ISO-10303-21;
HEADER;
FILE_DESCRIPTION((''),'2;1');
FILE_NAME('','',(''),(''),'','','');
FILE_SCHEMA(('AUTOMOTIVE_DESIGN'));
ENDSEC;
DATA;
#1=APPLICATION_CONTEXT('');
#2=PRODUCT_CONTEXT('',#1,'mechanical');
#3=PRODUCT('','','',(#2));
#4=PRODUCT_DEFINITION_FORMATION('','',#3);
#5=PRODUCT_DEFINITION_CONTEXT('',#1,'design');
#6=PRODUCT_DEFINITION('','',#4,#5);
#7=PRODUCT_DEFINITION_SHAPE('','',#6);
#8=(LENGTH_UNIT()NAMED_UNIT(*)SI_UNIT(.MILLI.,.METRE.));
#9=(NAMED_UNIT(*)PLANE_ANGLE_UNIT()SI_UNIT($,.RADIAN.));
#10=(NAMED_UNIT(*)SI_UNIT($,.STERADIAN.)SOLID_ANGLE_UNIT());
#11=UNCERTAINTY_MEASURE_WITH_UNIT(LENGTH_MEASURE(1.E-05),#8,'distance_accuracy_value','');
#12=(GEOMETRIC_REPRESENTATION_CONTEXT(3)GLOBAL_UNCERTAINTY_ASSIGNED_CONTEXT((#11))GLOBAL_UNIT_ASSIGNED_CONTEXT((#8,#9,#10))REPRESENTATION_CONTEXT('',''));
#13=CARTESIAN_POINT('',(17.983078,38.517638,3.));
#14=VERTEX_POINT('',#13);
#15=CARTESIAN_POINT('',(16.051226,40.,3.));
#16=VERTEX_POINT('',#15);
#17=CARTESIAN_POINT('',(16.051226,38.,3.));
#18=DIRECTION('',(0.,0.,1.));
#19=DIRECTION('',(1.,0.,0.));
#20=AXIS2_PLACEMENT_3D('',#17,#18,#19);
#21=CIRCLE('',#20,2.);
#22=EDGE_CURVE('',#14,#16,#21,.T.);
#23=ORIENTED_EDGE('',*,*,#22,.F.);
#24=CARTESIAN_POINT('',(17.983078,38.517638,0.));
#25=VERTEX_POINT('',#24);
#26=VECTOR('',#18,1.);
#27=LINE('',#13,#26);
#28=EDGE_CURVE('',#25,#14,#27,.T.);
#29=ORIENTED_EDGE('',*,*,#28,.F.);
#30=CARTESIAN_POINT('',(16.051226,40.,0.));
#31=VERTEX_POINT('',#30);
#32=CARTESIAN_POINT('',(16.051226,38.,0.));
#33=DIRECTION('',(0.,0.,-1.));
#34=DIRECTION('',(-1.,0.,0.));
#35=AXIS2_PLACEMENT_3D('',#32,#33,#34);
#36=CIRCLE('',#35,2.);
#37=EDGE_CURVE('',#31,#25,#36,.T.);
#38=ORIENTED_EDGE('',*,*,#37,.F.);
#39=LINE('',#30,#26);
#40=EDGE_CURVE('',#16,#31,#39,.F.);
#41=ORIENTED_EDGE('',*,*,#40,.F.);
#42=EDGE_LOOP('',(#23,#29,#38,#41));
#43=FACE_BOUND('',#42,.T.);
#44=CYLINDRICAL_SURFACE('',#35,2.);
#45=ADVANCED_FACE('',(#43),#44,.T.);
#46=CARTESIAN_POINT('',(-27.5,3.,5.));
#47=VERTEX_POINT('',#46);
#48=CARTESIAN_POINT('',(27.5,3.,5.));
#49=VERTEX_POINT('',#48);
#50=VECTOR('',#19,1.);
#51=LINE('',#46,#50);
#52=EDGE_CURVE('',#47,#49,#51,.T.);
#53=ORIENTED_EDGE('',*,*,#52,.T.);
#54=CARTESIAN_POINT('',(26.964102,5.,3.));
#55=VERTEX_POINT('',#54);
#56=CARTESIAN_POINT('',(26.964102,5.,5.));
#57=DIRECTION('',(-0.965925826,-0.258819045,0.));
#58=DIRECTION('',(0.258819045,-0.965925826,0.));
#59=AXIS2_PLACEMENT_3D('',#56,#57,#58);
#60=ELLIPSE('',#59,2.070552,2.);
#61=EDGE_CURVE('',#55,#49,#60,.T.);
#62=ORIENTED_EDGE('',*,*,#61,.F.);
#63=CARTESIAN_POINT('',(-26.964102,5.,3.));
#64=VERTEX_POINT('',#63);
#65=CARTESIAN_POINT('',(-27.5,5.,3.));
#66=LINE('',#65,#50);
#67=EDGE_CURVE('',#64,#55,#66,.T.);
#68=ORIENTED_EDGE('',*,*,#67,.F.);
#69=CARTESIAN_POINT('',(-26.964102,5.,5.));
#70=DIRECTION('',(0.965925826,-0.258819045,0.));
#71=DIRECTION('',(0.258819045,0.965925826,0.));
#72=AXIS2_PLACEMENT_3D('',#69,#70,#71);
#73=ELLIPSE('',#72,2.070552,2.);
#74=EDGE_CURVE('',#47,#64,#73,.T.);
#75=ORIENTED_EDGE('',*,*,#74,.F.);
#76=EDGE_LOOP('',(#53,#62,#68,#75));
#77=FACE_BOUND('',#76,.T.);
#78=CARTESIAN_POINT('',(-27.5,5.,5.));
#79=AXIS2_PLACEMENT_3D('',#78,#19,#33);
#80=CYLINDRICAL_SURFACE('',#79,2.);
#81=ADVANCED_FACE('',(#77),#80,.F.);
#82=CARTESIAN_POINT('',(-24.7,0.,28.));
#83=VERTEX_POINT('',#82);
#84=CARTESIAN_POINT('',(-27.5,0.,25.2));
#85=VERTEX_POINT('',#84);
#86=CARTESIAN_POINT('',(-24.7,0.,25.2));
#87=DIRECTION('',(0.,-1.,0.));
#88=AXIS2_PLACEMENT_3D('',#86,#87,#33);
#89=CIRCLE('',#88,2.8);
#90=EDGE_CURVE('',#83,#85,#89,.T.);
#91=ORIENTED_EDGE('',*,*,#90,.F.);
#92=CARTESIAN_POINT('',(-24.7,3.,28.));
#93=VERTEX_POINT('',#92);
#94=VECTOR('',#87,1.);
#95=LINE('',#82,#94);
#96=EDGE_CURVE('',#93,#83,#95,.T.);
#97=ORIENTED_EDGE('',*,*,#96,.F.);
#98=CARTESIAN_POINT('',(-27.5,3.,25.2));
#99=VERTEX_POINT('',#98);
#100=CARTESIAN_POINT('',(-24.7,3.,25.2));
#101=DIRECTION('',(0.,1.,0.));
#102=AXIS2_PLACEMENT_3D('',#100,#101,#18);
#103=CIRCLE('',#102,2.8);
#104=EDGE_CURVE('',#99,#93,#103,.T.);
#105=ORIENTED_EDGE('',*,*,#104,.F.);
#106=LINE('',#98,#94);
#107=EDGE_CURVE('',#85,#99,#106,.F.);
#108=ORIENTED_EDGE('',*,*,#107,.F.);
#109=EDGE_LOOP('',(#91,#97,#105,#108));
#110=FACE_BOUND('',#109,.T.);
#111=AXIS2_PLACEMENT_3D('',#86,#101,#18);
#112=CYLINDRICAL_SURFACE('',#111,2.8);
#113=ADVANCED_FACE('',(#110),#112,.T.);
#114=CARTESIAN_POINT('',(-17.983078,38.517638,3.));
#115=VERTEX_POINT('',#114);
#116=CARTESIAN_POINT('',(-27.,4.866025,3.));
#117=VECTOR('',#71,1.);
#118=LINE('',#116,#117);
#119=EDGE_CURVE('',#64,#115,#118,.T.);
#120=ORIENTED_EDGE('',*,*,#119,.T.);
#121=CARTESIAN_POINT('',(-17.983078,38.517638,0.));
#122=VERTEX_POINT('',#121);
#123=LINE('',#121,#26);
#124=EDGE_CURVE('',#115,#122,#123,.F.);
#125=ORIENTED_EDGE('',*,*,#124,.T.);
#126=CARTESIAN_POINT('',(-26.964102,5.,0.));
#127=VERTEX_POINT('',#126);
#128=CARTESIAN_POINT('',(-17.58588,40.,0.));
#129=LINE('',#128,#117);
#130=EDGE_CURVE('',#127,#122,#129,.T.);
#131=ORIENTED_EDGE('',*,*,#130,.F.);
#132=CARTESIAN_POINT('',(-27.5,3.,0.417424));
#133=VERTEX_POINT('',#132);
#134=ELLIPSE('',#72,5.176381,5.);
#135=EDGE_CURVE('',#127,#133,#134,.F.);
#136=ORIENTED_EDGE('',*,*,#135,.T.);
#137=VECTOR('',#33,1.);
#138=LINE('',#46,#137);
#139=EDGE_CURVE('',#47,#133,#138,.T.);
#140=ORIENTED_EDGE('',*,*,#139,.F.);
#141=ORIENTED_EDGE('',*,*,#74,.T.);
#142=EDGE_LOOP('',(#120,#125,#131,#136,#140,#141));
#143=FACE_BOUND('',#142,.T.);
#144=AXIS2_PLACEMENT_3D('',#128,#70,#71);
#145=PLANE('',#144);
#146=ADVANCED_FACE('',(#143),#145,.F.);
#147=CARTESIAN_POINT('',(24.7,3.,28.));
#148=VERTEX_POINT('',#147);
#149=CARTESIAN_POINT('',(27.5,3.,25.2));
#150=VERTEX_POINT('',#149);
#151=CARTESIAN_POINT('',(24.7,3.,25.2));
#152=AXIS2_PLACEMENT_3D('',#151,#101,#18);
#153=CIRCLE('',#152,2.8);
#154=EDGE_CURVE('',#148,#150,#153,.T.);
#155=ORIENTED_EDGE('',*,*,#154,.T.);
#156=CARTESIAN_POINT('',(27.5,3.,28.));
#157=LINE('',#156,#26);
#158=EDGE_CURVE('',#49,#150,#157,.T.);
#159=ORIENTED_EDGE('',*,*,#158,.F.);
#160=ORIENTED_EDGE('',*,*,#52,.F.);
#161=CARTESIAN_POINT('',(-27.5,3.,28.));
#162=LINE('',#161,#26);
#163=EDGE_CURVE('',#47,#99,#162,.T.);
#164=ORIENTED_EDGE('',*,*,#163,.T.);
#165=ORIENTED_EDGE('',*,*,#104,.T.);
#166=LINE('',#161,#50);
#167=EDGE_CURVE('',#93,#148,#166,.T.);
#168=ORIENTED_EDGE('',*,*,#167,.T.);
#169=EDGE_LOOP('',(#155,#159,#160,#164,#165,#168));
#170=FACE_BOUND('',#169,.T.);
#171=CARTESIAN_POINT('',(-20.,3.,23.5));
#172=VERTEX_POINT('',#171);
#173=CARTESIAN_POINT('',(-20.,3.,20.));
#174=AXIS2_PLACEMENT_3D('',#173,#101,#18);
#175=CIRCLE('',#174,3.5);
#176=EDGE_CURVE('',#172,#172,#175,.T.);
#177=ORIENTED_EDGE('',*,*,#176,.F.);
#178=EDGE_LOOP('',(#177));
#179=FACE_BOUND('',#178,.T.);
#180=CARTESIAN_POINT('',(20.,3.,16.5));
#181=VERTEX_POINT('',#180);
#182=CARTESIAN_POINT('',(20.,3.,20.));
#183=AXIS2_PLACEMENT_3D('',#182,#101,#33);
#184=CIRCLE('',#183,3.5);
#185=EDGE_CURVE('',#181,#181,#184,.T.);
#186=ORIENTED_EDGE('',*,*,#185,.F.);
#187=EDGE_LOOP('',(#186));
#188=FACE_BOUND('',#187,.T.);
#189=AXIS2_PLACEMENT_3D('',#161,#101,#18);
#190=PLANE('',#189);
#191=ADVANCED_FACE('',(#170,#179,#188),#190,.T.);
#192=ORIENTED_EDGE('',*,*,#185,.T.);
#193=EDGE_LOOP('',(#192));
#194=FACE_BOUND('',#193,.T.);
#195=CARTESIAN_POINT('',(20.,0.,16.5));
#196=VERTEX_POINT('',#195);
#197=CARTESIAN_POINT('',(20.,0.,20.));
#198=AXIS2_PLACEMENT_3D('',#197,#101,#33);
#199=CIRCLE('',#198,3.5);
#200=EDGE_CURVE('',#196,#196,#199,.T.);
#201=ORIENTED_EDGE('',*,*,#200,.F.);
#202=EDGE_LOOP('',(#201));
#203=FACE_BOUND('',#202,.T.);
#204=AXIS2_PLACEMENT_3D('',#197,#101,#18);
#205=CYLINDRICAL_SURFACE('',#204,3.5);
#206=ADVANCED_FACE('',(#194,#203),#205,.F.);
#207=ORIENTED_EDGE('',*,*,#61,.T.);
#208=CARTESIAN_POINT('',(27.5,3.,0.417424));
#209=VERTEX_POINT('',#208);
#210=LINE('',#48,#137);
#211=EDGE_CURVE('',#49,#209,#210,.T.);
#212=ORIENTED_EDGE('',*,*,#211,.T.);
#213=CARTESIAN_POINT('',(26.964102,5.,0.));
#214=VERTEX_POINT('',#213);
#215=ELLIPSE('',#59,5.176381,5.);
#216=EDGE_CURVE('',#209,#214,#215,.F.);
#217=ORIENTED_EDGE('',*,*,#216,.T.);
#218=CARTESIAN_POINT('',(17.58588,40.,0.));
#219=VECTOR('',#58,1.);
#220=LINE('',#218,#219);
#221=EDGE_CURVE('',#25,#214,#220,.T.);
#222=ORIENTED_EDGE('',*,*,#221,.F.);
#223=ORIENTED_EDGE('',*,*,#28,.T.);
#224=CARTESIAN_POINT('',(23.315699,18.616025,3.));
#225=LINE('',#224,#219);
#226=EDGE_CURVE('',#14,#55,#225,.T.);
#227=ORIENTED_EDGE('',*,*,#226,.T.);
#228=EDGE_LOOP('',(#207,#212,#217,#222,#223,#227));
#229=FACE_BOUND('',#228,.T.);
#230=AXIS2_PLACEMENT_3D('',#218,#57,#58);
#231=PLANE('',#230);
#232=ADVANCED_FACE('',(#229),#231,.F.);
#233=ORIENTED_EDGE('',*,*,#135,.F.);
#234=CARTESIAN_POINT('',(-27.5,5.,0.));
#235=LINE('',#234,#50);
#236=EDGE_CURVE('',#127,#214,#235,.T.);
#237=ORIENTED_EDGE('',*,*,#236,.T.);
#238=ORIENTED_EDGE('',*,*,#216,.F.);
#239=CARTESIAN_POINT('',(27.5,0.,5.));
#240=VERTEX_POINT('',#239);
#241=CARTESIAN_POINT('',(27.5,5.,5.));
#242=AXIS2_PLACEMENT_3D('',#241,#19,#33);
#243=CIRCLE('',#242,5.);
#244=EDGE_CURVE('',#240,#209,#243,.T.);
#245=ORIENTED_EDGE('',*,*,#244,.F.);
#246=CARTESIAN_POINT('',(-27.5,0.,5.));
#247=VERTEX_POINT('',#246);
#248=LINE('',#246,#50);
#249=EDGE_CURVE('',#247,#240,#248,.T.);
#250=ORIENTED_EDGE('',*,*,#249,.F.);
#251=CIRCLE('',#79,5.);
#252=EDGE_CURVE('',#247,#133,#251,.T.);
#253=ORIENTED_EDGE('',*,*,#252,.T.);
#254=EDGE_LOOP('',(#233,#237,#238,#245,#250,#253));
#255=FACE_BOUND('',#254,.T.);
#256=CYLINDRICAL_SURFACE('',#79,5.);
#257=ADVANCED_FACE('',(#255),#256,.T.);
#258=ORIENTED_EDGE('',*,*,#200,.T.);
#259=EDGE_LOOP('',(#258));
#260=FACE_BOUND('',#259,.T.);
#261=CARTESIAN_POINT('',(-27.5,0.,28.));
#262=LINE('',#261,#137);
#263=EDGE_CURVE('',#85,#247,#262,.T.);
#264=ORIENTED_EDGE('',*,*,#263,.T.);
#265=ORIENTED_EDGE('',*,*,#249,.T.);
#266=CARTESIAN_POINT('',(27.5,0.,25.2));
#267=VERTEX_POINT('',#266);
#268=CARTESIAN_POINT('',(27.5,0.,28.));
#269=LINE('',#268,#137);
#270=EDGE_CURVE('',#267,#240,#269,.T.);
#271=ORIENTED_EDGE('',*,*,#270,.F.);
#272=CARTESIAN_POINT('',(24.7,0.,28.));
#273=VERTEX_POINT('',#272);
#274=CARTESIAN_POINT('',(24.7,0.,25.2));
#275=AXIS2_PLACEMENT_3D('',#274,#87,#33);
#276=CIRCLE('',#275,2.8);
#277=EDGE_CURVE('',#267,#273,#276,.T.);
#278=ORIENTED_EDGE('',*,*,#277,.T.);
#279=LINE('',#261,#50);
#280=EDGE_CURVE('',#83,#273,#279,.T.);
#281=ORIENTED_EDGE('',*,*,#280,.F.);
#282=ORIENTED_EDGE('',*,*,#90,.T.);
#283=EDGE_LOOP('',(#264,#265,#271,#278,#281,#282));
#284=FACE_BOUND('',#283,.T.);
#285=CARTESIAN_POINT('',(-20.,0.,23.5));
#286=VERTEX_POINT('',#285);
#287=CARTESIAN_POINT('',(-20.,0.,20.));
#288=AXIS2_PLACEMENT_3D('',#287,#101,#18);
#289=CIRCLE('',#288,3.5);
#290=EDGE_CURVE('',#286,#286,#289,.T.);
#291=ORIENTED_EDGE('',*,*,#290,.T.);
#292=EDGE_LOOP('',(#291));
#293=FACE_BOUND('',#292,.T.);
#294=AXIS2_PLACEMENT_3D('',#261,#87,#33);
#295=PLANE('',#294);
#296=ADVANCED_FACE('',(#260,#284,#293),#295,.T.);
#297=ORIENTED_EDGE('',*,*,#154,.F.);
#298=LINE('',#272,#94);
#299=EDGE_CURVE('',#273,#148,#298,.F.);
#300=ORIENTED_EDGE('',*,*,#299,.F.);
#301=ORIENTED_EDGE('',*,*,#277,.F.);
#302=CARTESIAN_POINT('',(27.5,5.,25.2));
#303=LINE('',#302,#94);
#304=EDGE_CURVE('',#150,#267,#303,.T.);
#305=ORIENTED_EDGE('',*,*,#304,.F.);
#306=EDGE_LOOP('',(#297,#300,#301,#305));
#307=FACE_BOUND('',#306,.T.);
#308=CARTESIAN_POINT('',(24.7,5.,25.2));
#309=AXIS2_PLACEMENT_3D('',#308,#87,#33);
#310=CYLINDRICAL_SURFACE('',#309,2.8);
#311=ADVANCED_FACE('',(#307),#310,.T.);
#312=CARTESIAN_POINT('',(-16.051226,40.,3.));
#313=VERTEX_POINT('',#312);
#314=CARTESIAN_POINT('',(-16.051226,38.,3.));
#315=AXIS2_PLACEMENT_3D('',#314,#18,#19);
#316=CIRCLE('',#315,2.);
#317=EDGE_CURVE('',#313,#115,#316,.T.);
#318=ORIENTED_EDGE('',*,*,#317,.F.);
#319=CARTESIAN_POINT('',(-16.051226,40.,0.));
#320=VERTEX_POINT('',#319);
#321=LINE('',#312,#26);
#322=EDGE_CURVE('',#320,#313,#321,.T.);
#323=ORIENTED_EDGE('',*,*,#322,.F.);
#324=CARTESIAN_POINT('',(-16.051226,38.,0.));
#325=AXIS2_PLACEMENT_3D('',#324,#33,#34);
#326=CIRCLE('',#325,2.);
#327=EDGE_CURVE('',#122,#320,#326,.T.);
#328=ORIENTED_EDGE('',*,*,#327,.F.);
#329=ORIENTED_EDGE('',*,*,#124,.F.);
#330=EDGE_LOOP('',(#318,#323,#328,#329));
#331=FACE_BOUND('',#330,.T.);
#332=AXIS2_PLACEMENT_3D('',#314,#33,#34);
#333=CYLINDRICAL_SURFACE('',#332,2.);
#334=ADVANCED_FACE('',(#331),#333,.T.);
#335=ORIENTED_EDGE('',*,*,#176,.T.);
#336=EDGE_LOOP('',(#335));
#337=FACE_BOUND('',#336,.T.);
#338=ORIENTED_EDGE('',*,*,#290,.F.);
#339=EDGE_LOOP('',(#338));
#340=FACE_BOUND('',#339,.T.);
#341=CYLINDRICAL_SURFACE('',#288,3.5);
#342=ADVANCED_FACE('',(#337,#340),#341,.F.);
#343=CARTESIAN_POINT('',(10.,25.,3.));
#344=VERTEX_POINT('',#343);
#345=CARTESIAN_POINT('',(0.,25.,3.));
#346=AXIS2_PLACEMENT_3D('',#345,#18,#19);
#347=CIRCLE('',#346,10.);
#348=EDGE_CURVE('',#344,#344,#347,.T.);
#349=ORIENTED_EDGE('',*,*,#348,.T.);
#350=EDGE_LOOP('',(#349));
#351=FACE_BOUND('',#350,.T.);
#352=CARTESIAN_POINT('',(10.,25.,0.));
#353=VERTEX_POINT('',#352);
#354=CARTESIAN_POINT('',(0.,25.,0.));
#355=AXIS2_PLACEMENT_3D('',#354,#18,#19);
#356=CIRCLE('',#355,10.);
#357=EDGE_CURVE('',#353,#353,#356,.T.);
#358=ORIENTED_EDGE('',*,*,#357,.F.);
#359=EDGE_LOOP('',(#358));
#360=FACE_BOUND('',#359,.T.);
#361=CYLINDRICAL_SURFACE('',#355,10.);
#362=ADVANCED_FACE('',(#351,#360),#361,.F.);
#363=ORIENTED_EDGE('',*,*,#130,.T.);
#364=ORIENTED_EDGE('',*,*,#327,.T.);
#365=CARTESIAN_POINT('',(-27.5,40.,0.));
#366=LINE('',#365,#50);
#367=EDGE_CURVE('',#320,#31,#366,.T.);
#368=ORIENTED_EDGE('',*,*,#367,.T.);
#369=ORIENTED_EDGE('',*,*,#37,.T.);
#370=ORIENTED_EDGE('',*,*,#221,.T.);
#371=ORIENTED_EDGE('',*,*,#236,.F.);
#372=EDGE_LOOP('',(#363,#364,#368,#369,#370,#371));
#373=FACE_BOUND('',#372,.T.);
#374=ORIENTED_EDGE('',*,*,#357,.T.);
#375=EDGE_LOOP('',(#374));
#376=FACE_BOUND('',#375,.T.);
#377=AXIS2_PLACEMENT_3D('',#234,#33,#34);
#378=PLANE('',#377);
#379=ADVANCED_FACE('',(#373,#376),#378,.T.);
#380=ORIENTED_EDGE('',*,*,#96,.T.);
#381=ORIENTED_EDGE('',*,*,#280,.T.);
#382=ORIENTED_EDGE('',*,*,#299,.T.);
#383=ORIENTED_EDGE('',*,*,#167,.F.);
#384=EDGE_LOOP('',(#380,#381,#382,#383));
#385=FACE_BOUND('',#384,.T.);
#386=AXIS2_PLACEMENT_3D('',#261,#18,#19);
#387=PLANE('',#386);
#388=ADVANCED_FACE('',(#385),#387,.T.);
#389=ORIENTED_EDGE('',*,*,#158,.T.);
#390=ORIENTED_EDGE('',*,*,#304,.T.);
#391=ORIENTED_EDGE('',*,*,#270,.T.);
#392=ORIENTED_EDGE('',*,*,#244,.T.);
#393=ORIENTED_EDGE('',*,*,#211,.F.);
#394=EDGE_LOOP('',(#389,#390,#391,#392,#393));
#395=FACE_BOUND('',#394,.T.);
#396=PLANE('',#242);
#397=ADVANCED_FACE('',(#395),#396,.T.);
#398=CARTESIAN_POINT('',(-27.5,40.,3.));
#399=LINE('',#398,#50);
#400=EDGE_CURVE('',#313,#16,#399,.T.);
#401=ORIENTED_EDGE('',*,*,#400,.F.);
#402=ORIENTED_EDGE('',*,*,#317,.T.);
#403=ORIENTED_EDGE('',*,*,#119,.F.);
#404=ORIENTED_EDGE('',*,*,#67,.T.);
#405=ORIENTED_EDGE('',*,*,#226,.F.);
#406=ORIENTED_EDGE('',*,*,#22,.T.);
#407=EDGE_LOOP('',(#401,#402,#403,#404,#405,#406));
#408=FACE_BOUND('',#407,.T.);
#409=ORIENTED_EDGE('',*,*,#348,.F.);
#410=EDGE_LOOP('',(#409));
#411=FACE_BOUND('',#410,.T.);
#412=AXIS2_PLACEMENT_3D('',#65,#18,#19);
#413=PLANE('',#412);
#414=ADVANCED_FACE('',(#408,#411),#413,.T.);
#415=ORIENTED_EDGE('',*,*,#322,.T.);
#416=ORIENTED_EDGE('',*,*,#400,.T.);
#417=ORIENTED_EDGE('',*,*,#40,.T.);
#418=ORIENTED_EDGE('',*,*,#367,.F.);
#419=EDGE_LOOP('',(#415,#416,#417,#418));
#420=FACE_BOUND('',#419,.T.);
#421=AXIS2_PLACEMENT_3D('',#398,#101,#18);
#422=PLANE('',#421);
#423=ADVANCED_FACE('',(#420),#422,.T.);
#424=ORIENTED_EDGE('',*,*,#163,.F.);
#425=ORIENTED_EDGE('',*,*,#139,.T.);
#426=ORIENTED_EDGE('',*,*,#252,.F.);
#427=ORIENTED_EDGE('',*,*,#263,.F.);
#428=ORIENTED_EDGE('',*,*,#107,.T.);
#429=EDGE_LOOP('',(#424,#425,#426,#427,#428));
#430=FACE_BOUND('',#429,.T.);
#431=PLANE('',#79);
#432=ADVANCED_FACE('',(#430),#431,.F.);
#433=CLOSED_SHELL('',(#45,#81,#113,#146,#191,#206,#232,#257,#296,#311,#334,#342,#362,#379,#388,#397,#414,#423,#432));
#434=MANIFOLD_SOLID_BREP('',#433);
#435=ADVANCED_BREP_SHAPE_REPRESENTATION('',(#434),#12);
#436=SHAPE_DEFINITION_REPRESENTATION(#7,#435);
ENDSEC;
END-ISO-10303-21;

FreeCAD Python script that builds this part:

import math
import FreeCAD as App
import Part
import Sketcher

V = App.Vector
Q = App.Units.Quantity


def edges_at(feature, points):
    """Names of the edges that pass closest to the given points."""
    edges = feature.Shape.Edges
    near = lambda p: min(range(len(edges)), key=lambda i: edges[i].distToShape(Part.Vertex(*p))[0])
    return sorted({f"Edge{near(p) + 1}" for p in points})

doc = App.newDocument("Part")
body = doc.addObject("PartDesign::Body", "Body")

# Sketch on YZ plane
sketch1 = body.newObject("Sketcher::SketchObject", "Sketch")
sketch1.AttachmentSupport = (doc.getObject("YZ_Plane"), [""])
sketch1.MapMode = "FlatFace"
sketch1.AttachmentOffset = App.Placement(V(0, 0, 27.5), App.Rotation())
sketch1.addGeometry([
    Part.LineSegment(V(0, 28, 0), V(0, 5, 0)),  # 0
    Part.ArcOfCircle(Part.Circle(V(5, 5, 0), V(0, 0, 1), 5), math.radians(180), math.radians(270)),  # 1
    Part.LineSegment(V(5, 0, 0), V(40, 0, 0)),  # 2
    Part.LineSegment(V(40, 0, 0), V(40, 3, 0)),  # 3
    Part.LineSegment(V(40, 3, 0), V(5, 3, 0)),  # 4
    Part.ArcOfCircle(Part.Circle(V(5, 5, 0), V(0, 0, 1), 2), math.radians(-180), math.radians(-90)),  # 5
    Part.LineSegment(V(3, 5, 0), V(3, 28, 0)),  # 6
    Part.LineSegment(V(3, 28, 0), V(0, 28, 0)),  # 7
], False)
sketch1.addConstraint([
    Sketcher.Constraint("Tangent", 0, 2, 1, 1),
    Sketcher.Constraint("Tangent", 1, 2, 2, 1),
    Sketcher.Constraint("Coincident", 2, 2, 3, 1),
    Sketcher.Constraint("Coincident", 3, 2, 4, 1),
    Sketcher.Constraint("Tangent", 4, 2, 5, 2),
    Sketcher.Constraint("Tangent", 5, 1, 6, 1),
    Sketcher.Constraint("Coincident", 6, 2, 7, 1),
    Sketcher.Constraint("Coincident", 7, 2, 0, 1),
    Sketcher.Constraint("Vertical", 0),
    Sketcher.Constraint("Horizontal", 2),
    Sketcher.Constraint("Vertical", 3),
    Sketcher.Constraint("Horizontal", 4),
    Sketcher.Constraint("Vertical", 6),
    Sketcher.Constraint("Horizontal", 7),
    Sketcher.Constraint("Coincident", 5, 3, 1, 3),
    Sketcher.Constraint("PointOnObject", 0, 2, -2),
    Sketcher.Constraint("PointOnObject", 1, 2, -1),
    Sketcher.Constraint("Radius", 1, 5.0),
    Sketcher.Constraint("Radius", 5, 2.0),
    Sketcher.Constraint("DistanceX", 2, 1, 2, 2, 35.0),
    Sketcher.Constraint("DistanceY", 0, 2, 0, 1, 23.0),
])
pad1 = body.newObject("PartDesign::Pad", "Pad")
pad1.Profile = sketch1
pad1.Length = 55
pad1.Reversed = True

# Sketch on XY plane
sketch2 = body.newObject("Sketcher::SketchObject", "Sketch001")
sketch2.AttachmentSupport = (doc.getObject("XY_Plane"), [""])
sketch2.MapMode = "FlatFace"
sketch2.AttachmentOffset = App.Placement(V(0, 0, 3), App.Rotation())
sketch2.addGeometry(Part.Circle(V(0, 25, 0), V(0, 0, 1), 10), False)
sketch2.addConstraint([
    Sketcher.Constraint("PointOnObject", 0, 3, -2),
    Sketcher.Constraint("Diameter", 0, 20.0),
    Sketcher.Constraint("DistanceY", -1, 1, 0, 3, 25.0),
])
pocket1 = body.newObject("PartDesign::Pocket", "Pocket")
pocket1.Profile = sketch2
pocket1.Type = "ThroughAll"

# Sketch on XY plane
sketch3 = body.newObject("Sketcher::SketchObject", "Sketch002")
sketch3.AttachmentSupport = (doc.getObject("XY_Plane"), [""])
sketch3.MapMode = "FlatFace"
sketch3.AttachmentOffset = App.Placement(V(0, 0, 3), App.Rotation())
sketch3.addGeometry([
    Part.LineSegment(V(-27.5, 3, 0), V(-17.58588, 40, 0)),  # 0
    Part.LineSegment(V(-17.58588, 40, 0), V(17.58588, 40, 0)),  # 1
    Part.LineSegment(V(17.58588, 40, 0), V(27.5, 3, 0)),  # 2
    Part.LineSegment(V(27.5, 3, 0), V(27.5, 50, 0)),  # 3
    Part.LineSegment(V(27.5, 50, 0), V(-27.5, 50, 0)),  # 4
    Part.LineSegment(V(-27.5, 50, 0), V(-27.5, 3, 0)),  # 5
], False)
sketch3.addConstraint([
    Sketcher.Constraint("Coincident", 0, 2, 1, 1),
    Sketcher.Constraint("Coincident", 1, 2, 2, 1),
    Sketcher.Constraint("Coincident", 2, 2, 3, 1),
    Sketcher.Constraint("Coincident", 3, 2, 4, 1),
    Sketcher.Constraint("Coincident", 4, 2, 5, 1),
    Sketcher.Constraint("Coincident", 5, 2, 0, 1),
    Sketcher.Constraint("Horizontal", 1),
    Sketcher.Constraint("Vertical", 3),
    Sketcher.Constraint("Horizontal", 4),
    Sketcher.Constraint("Vertical", 5),
    Sketcher.Constraint("Symmetric", 2, 2, 5, 2, -2),
    Sketcher.Constraint("Equal", 0, 2),
    Sketcher.Constraint("DistanceX", 4, 2, 4, 1, 55.0),
    Sketcher.Constraint("DistanceY", 3, 1, 3, 2, 47.0),
    Sketcher.Constraint("Angle", 0, Q("75 deg")),
    Sketcher.Constraint("DistanceY", -1, 1, 0, 2, 40.0),
    Sketcher.Constraint("DistanceY", -1, 1, 2, 2, 3.0),
])
pocket2 = body.newObject("PartDesign::Pocket", "Pocket001")
pocket2.Profile = sketch3
pocket2.Type = "ThroughAll"
pocket2.Midplane = True

# Sketch on XZ plane
sketch4 = body.newObject("Sketcher::SketchObject", "Sketch003")
sketch4.AttachmentSupport = (doc.getObject("XZ_Plane"), [""])
sketch4.MapMode = "FlatFace"
sketch4.AttachmentOffset = App.Placement(V(0, 0, -3), App.Rotation())
sketch4.addGeometry([
    Part.Circle(V(-20, 20, 0), V(0, 0, 1), 3.5),
    Part.Circle(V(20, 20, 0), V(0, 0, 1), 3.5),
], False)
sketch4.addConstraint([
    Sketcher.Constraint("Equal", 0, 1),
    Sketcher.Constraint("Symmetric", 0, 3, 1, 3, -2),
    Sketcher.Constraint("Diameter", 0, 7.0),
    Sketcher.Constraint("DistanceX", 0, 3, -1, 1, 20.0),
    Sketcher.Constraint("DistanceY", -1, 1, 0, 3, 20.0),
])
pocket3 = body.newObject("PartDesign::Pocket", "Pocket002")
pocket3.Profile = sketch4
pocket3.Type = "ThroughAll"
pocket3.Reversed = True
doc.recompute()

fillet = body.newObject("PartDesign::Fillet", "Fillet")
fillet.Base = (pocket3, edges_at(pocket3, [(17.586, 40, 1.5), (-17.586, 40, 1.5)]))
fillet.Radius = 2
doc.recompute()

fillet2 = body.newObject("PartDesign::Fillet", "Fillet001")
fillet2.Base = (fillet, edges_at(fillet, [(27.5, 1.5, 28), (-27.5, 1.5, 28)]))
fillet2.Radius = 2.8

doc.recompute()
